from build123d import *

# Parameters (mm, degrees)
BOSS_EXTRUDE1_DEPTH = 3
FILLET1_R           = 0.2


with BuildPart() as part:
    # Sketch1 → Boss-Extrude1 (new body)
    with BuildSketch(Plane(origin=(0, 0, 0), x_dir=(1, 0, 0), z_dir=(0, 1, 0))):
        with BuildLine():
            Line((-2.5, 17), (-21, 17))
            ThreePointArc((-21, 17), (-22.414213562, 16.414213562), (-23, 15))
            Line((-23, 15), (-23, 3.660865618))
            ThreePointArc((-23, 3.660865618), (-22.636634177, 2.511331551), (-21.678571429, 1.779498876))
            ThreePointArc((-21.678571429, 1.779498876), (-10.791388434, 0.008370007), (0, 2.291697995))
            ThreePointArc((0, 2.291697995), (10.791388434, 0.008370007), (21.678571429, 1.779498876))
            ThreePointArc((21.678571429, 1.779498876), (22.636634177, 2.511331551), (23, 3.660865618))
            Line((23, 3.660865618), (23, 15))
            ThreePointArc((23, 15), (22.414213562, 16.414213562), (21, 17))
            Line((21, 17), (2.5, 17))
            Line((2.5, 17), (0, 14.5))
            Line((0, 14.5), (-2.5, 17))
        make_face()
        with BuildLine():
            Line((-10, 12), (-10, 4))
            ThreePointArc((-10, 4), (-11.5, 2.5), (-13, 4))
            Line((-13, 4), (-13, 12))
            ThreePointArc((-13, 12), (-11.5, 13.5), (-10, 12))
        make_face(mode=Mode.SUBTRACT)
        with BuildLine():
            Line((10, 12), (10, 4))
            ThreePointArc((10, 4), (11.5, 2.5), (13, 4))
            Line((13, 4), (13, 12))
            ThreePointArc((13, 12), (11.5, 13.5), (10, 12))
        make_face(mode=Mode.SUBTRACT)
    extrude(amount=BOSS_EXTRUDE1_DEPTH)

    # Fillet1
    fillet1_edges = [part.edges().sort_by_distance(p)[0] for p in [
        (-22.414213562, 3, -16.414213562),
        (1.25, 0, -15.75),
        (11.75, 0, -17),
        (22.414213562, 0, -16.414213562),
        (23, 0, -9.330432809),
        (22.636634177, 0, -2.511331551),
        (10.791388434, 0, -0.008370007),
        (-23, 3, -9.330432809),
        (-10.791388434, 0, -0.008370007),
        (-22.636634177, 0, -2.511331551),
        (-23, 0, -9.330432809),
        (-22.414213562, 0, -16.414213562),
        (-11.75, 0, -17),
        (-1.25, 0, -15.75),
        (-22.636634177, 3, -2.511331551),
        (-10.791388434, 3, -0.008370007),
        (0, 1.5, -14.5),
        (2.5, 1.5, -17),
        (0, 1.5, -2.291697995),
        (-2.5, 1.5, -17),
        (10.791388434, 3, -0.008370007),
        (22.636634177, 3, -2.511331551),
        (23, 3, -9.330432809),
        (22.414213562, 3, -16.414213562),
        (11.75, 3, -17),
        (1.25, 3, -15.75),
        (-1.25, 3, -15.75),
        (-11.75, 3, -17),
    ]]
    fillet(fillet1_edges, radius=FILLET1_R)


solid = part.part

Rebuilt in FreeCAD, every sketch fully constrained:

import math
import FreeCAD as App
import Part
import Sketcher


def edges_at(feature, points):
    """Names of the edges that pass closest to the given points."""
    edges = feature.Shape.Edges
    near = lambda p: min(range(len(edges)), key=lambda i: edges[i].distToShape(Part.Vertex(*p))[0])
    return sorted({f"Edge{near(p) + 1}" for p in points})

doc = App.newDocument("Part")
params = doc.addObject("Spreadsheet::Sheet", "Params")
for row, (alias, value) in enumerate([
    ("sketch1_radius", "2 mm"),
    ("sketch1_radius2", "30 mm"),
    ("sketch1_radius3", "1.5 mm"),
    ("sketch1_height", "8 mm"),
    ("sketch1_width", "18.5 mm"),
    ("pad1_length", "3 mm"),
    ("fillet_radius", "0.2 mm"),
], start=1):
    params.set(f"A{row}", alias)
    params.set(f"B{row}", "=" + value)
    params.setAlias(f"B{row}", alias)

body = doc.addObject("PartDesign::Body", "Body")

sketch1 = doc.addObject("Sketcher::SketchObject", "Sketch")
body.addObject(sketch1)
sketch1.AttachmentSupport = (doc.XZ_Plane, [""])
sketch1.MapMode = "FlatFace"
sketch1.addGeometry(Part.LineSegment(App.Vector(-2.5, -17, 0), App.Vector(-21, -17, 0)), False)
sketch1.addGeometry(Part.ArcOfCircle(Part.Circle(App.Vector(-21, -15, 0), App.Vector(0, 0, 1), 2), math.radians(-180), math.radians(-90)), False)
sketch1.addGeometry(Part.LineSegment(App.Vector(-23, -15, 0), App.Vector(-23, -3.7, 0)), False)
sketch1.addGeometry(Part.ArcOfCircle(Part.Circle(App.Vector(-21, -3.7, 0), App.Vector(0, 0, 1), 2), math.radians(110), math.radians(180)), False)
sketch1.addGeometry(Part.ArcOfCircle(Part.Circle(App.Vector(-11.5, -30, 0), App.Vector(0, 0, 1), 30), math.radians(67), math.radians(110)), False)
sketch1.addGeometry(Part.ArcOfCircle(Part.Circle(App.Vector(11.5, -30, 0), App.Vector(0, 0, 1), 30), math.radians(70), math.radians(113)), False)
sketch1.addGeometry(Part.ArcOfCircle(Part.Circle(App.Vector(21, -3.7, 0), App.Vector(0, 0, 1), 2), math.radians(0), math.radians(70)), False)
sketch1.addGeometry(Part.LineSegment(App.Vector(23, -3.7, 0), App.Vector(23, -15, 0)), False)
sketch1.addGeometry(Part.ArcOfCircle(Part.Circle(App.Vector(21, -15, 0), App.Vector(0, 0, 1), 2), math.radians(-90), math.radians(0)), False)
sketch1.addGeometry(Part.LineSegment(App.Vector(21, -17, 0), App.Vector(2.5, -17, 0)), False)
sketch1.addGeometry(Part.LineSegment(App.Vector(2.5, -17, 0), App.Vector(0, -14.5, 0)), False)
sketch1.addGeometry(Part.LineSegment(App.Vector(0, -14.5, 0), App.Vector(-2.5, -17, 0)), False)
sketch1.addGeometry(Part.ArcOfCircle(Part.Circle(App.Vector(-11.5, -12, 0), App.Vector(0, 0, 1), 1.5), math.radians(180), math.radians(360)), False)
sketch1.addGeometry(Part.LineSegment(App.Vector(-10, -12, 0), App.Vector(-10, -4, 0)), False)
sketch1.addGeometry(Part.ArcOfCircle(Part.Circle(App.Vector(-11.5, -4, 0), App.Vector(0, 0, 1), 1.5), math.radians(0), math.radians(180)), False)
sketch1.addGeometry(Part.LineSegment(App.Vector(-13, -4, 0), App.Vector(-13, -12, 0)), False)
sketch1.addGeometry(Part.LineSegment(App.Vector(10, -4, 0), App.Vector(10, -12, 0)), False)
sketch1.addGeometry(Part.ArcOfCircle(Part.Circle(App.Vector(11.5, -12, 0), App.Vector(0, 0, 1), 1.5), math.radians(180), math.radians(360)), False)
sketch1.addGeometry(Part.LineSegment(App.Vector(13, -12, 0), App.Vector(13, -4, 0)), False)
sketch1.addGeometry(Part.ArcOfCircle(Part.Circle(App.Vector(11.5, -4, 0), App.Vector(0, 0, 1), 1.5), math.radians(0), math.radians(180)), False)
sketch1.addConstraint(Sketcher.Constraint("Tangent", 0, 2, 1, 2))
sketch1.addConstraint(Sketcher.Constraint("Tangent", 1, 1, 2, 1))
sketch1.addConstraint(Sketcher.Constraint("Tangent", 2, 2, 3, 2))
sketch1.addConstraint(Sketcher.Constraint("Tangent", 3, 1, 4, 2))
sketch1.addConstraint(Sketcher.Constraint("Coincident", 4, 1, 5, 2))
sketch1.addConstraint(Sketcher.Constraint("Tangent", 5, 1, 6, 2))
sketch1.addConstraint(Sketcher.Constraint("Tangent", 6, 1, 7, 1))
sketch1.addConstraint(Sketcher.Constraint("Tangent", 7, 2, 8, 2))
sketch1.addConstraint(Sketcher.Constraint("Tangent", 8, 1, 9, 1))
sketch1.addConstraint(Sketcher.Constraint("Coincident", 9, 2, 10, 1))
sketch1.addConstraint(Sketcher.Constraint("Coincident", 10, 2, 11, 1))
sketch1.addConstraint(Sketcher.Constraint("Coincident", 11, 2, 0, 1))
sketch1.addConstraint(Sketcher.Constraint("Tangent", 12, 2, 13, 1))
sketch1.addConstraint(Sketcher.Constraint("Tangent", 13, 2, 14, 1))
sketch1.addConstraint(Sketcher.Constraint("Tangent", 14, 2, 15, 1))
sketch1.addConstraint(Sketcher.Constraint("Tangent", 15, 2, 12, 1))
sketch1.addConstraint(Sketcher.Constraint("Tangent", 16, 2, 17, 1))
sketch1.addConstraint(Sketcher.Constraint("Tangent", 17, 2, 18, 1))
sketch1.addConstraint(Sketcher.Constraint("Tangent", 18, 2, 19, 1))
sketch1.addConstraint(Sketcher.Constraint("Tangent", 19, 2, 16, 1))
sketch1.addConstraint(Sketcher.Constraint("Horizontal", 0))
sketch1.addConstraint(Sketcher.Constraint("Vertical", 2))
sketch1.addConstraint(Sketcher.Constraint("Vertical", 7))
sketch1.addConstraint(Sketcher.Constraint("Horizontal", 9))
sketch1.addConstraint(Sketcher.Constraint("Vertical", 13))
sketch1.addConstraint(Sketcher.Constraint("Vertical", 15))
sketch1.addConstraint(Sketcher.Constraint("Vertical", 16))
sketch1.addConstraint(Sketcher.Constraint("Vertical", 18))
sketch1.addConstraint(Sketcher.Constraint("Equal", 1, 3))
sketch1.addConstraint(Sketcher.Constraint("Equal", 4, 5))
sketch1.addConstraint(Sketcher.Constraint("Equal", 3, 6))
sketch1.addConstraint(Sketcher.Constraint("Equal", 6, 8))
sketch1.addConstraint(Sketcher.Constraint("Equal", 14, 17))
sketch1.addConstraint(Sketcher.Constraint("Symmetric", 4, 3, 5, 3, -2))
sketch1.addConstraint(Sketcher.Constraint("Symmetric", 1, 3, 8, 3, -2))
sketch1.addConstraint(Sketcher.Constraint("Symmetric", 12, 3, 17, 3, -2))
sketch1.addConstraint(Sketcher.Constraint("PointOnObject", 10, 2, -2))
sketch1.addConstraint(Sketcher.Constraint("Perpendicular", 10, 11))
sketch1.addConstraint(Sketcher.Constraint("Horizontal", 14, 3, 19, 3))
sketch1.addConstraint(Sketcher.Constraint("Vertical", 4, 3, 12, 3))
sketch1.addConstraint(Sketcher.Constraint("Equal", 0, 9))
sketch1.addConstraint(Sketcher.Constraint("Radius", 1, 2.0))
sketch1.addConstraint(Sketcher.Constraint("Radius", 4, 30.0))
sketch1.addConstraint(Sketcher.Constraint("Radius", 12, 1.5))
sketch1.addConstraint(Sketcher.Constraint("DistanceY", 13, 1, 13, 2, 8.0))
sketch1.addConstraint(Sketcher.Constraint("DistanceX", 0, 2, 0, 1, 18.5))
sketch1.addConstraint(Sketcher.Constraint("DistanceX", 1, 3, -1, 1, 21.0))
sketch1.addConstraint(Sketcher.Constraint("DistanceY", 1, 3, -1, 1, 15.0))
sketch1.addConstraint(Sketcher.Constraint("DistanceY", 4, 3, -1, 1, 30.0))
sketch1.addConstraint(Sketcher.Constraint("DistanceY", 12, 3, -1, 1, 12.0))
sketch1.addConstraint(Sketcher.Constraint("DistanceX", 12, 2, -1, 1, 10.0))
sketch1.setExpression("Constraints[41]", "Params.sketch1_radius")
sketch1.setExpression("Constraints[42]", "Params.sketch1_radius2")
sketch1.setExpression("Constraints[43]", "Params.sketch1_radius3")
sketch1.setExpression("Constraints[44]", "Params.sketch1_height")
sketch1.setExpression("Constraints[45]", "Params.sketch1_width")
pad1 = doc.addObject("PartDesign::Pad", "Pad")
body.addObject(pad1)
pad1.Profile = sketch1
pad1.setExpression("Length", "Params.pad1_length")
pad1.Reversed = True
doc.recompute()

fillet = doc.addObject("PartDesign::Fillet", "Fillet")
body.addObject(fillet)
fillet.Base = (pad1, edges_at(pad1, [
    (-22.414, 3, -16.414),
    (1.25, 0, -15.75),
    (11.75, 0, -17),
    (22.414, 0, -16.414),
    (23, 0, -9.33),
    (22.637, 0, -2.511),
    (10.791, 0, -0.008),
    (-23, 3, -9.33),
    (-10.791, 0, -0.008),
    (-22.637, 0, -2.511),
    (-23, 0, -9.33),
    (-22.414, 0, -16.414),
    (-11.75, 0, -17),
    (-1.25, 0, -15.75),
    (-22.637, 3, -2.511),
    (-10.791, 3, -0.008),
    (0, 1.5, -14.5),
    (2.5, 1.5, -17),
    (0, 1.5, -2.292),
    (-2.5, 1.5, -17),
    (10.791, 3, -0.008),
    (22.637, 3, -2.511),
    (23, 3, -9.33),
    (22.414, 3, -16.414),
    (11.75, 3, -17),
    (1.25, 3, -15.75),
    (-1.25, 3, -15.75),
    (-11.75, 3, -17),
]))
fillet.setExpression("Radius", "Params.fillet_radius")

doc.recompute()
